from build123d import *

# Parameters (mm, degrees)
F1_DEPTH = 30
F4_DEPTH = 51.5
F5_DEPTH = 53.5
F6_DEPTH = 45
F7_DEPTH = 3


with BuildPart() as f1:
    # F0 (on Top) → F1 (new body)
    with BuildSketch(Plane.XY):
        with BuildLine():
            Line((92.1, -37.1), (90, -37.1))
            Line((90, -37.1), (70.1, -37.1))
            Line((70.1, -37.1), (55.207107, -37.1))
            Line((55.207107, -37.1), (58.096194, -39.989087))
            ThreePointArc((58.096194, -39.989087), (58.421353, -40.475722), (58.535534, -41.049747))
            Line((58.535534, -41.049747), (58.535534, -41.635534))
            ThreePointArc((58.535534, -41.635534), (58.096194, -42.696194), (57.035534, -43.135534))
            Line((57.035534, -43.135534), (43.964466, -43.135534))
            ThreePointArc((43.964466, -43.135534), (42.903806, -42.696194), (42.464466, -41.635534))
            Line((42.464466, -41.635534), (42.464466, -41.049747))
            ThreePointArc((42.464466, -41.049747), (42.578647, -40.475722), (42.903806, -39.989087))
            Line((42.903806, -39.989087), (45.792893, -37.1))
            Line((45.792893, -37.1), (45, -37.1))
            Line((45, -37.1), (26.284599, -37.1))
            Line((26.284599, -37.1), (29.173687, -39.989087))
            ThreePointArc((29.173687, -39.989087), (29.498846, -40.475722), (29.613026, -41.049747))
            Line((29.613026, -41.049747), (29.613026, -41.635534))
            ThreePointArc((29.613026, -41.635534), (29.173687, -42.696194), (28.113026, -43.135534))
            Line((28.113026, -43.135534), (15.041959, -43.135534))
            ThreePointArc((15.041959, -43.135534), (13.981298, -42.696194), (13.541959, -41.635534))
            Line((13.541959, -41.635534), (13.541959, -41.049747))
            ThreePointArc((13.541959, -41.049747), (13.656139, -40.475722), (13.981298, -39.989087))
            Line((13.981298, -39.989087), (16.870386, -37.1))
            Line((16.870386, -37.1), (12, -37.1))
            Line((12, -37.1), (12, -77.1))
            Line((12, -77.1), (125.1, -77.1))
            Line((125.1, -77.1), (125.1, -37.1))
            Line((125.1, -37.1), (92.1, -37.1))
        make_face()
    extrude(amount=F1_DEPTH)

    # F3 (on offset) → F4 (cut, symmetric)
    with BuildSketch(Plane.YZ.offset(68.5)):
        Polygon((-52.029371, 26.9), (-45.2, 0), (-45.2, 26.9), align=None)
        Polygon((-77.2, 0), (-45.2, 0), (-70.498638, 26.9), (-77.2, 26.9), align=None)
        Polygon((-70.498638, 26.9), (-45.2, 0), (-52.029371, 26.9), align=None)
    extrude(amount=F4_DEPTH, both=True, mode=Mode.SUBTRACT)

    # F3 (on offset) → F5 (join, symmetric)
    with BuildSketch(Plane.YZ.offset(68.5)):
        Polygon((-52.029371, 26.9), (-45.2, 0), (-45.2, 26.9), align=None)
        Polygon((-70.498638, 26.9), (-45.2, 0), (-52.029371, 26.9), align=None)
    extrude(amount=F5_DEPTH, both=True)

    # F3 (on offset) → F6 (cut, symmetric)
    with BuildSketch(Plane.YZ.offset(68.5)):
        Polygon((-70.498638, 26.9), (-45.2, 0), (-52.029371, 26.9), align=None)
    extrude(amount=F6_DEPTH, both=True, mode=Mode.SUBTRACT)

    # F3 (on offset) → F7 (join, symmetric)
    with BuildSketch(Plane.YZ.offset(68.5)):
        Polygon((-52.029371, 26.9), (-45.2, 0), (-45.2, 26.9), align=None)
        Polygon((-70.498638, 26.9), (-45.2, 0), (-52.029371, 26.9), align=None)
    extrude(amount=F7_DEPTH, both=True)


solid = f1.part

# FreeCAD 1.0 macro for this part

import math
import FreeCAD as App
import Part
import Sketcher

V = App.Vector

doc = App.newDocument("Part")
body = doc.addObject("PartDesign::Body", "Body")

sketch1 = doc.addObject("Sketcher::SketchObject", "Sketch")
body.addObject(sketch1)
sketch1.AttachmentSupport = (doc.XY_Plane, [""])
sketch1.MapMode = "FlatFace"
sketch1.addGeometry([
    Part.LineSegment(V(55.2, -37.1, 0), V(58.1, -40, 0)),
    Part.ArcOfCircle(Part.Circle(V(57, -41, 0), V(0, 0, 1), 1.5), math.radians(0), math.radians(45)),
    Part.LineSegment(V(58.5, -41, 0), V(58.5, -41.6, 0)),
    Part.ArcOfCircle(Part.Circle(V(57, -41.6, 0), V(0, 0, 1), 1.5), math.radians(-90), math.radians(0)),
    Part.LineSegment(V(57, -43.1, 0), V(44, -43.1, 0)),
    Part.ArcOfCircle(Part.Circle(V(44, -41.6, 0), V(0, 0, 1), 1.5), math.radians(-180), math.radians(-90)),
    Part.LineSegment(V(42.5, -41.6, 0), V(42.5, -41, 0)),
    Part.ArcOfCircle(Part.Circle(V(44, -41, 0), V(0, 0, 1), 1.5), math.radians(135), math.radians(180)),
    Part.LineSegment(V(42.9, -40, 0), V(45.8, -37.1, 0)),
    Part.LineSegment(V(45.8, -37.1, 0), V(26.3, -37.1, 0)),
    Part.LineSegment(V(26.3, -37.1, 0), V(29.2, -40, 0)),
    Part.ArcOfCircle(Part.Circle(V(28.1, -41, 0), V(0, 0, 1), 1.5), math.radians(0), math.radians(45)),
    Part.LineSegment(V(29.6, -41, 0), V(29.6, -41.6, 0)),
    Part.ArcOfCircle(Part.Circle(V(28.1, -41.6, 0), V(0, 0, 1), 1.5), math.radians(-90), math.radians(0)),
    Part.LineSegment(V(28.1, -43.1, 0), V(15, -43.1, 0)),
    Part.ArcOfCircle(Part.Circle(V(15, -41.6, 0), V(0, 0, 1), 1.5), math.radians(180), math.radians(270)),
    Part.LineSegment(V(13.5, -41.6, 0), V(13.5, -41, 0)),
    Part.ArcOfCircle(Part.Circle(V(15, -41, 0), V(0, 0, 1), 1.5), math.radians(135), math.radians(180)),
    Part.LineSegment(V(14, -40, 0), V(16.9, -37.1, 0)),
    Part.LineSegment(V(16.9, -37.1, 0), V(12, -37.1, 0)),
    Part.LineSegment(V(12, -37.1, 0), V(12, -77.1, 0)),
    Part.LineSegment(V(12, -77.1, 0), V(125.1, -77.1, 0)),
    Part.LineSegment(V(125.1, -77.1, 0), V(125.1, -37.1, 0)),
    Part.LineSegment(V(125.1, -37.1, 0), V(55.2, -37.1, 0)),
], False)
sketch1.addConstraint([
    Sketcher.Constraint("Tangent", 0, 2, 1, 2),
    Sketcher.Constraint("Tangent", 1, 1, 2, 1),
    Sketcher.Constraint("Tangent", 2, 2, 3, 2),
    Sketcher.Constraint("Tangent", 3, 1, 4, 1),
    Sketcher.Constraint("Tangent", 4, 2, 5, 2),
    Sketcher.Constraint("Tangent", 5, 1, 6, 1),
    Sketcher.Constraint("Tangent", 6, 2, 7, 2),
    Sketcher.Constraint("Tangent", 7, 1, 8, 1),
    Sketcher.Constraint("Coincident", 8, 2, 9, 1),
    Sketcher.Constraint("Coincident", 9, 2, 10, 1),
    Sketcher.Constraint("Tangent", 10, 2, 11, 2),
    Sketcher.Constraint("Tangent", 11, 1, 12, 1),
    Sketcher.Constraint("Tangent", 12, 2, 13, 2),
    Sketcher.Constraint("Tangent", 13, 1, 14, 1),
    Sketcher.Constraint("Tangent", 14, 2, 15, 2),
    Sketcher.Constraint("Tangent", 15, 1, 16, 1),
    Sketcher.Constraint("Tangent", 16, 2, 17, 2),
    Sketcher.Constraint("Tangent", 17, 1, 18, 1),
    Sketcher.Constraint("Coincident", 18, 2, 19, 1),
    Sketcher.Constraint("Coincident", 19, 2, 20, 1),
    Sketcher.Constraint("Coincident", 20, 2, 21, 1),
    Sketcher.Constraint("Coincident", 21, 2, 22, 1),
    Sketcher.Constraint("Coincident", 22, 2, 23, 1),
    Sketcher.Constraint("Coincident", 23, 2, 0, 1),
    Sketcher.Constraint("Vertical", 2),
    Sketcher.Constraint("Horizontal", 4),
    Sketcher.Constraint("Vertical", 6),
    Sketcher.Constraint("Horizontal", 9),
    Sketcher.Constraint("Vertical", 12),
    Sketcher.Constraint("Horizontal", 14),
    Sketcher.Constraint("Vertical", 16),
    Sketcher.Constraint("Horizontal", 19),
    Sketcher.Constraint("Vertical", 20),
    Sketcher.Constraint("Horizontal", 21),
    Sketcher.Constraint("Vertical", 22),
    Sketcher.Constraint("Horizontal", 23),
    Sketcher.Constraint("Equal", 1, 3),
    Sketcher.Constraint("Equal", 3, 5),
    Sketcher.Constraint("Equal", 5, 7),
    Sketcher.Constraint("Equal", 5, 13),
    Sketcher.Constraint("Equal", 13, 15),
    Sketcher.Constraint("Equal", 11, 17),
    Sketcher.Constraint("Perpendicular", 0, 8),
    Sketcher.Constraint("Perpendicular", 8, 10),
    Sketcher.Constraint("Perpendicular", 10, 18),
    Sketcher.Constraint("Horizontal", 1, 3, 7, 3),
    Sketcher.Constraint("Horizontal", 5, 3, 13, 3),
    Sketcher.Constraint("Horizontal", 11, 3, 17, 3),
    Sketcher.Constraint("Horizontal", 0, 2, 7, 1),
    Sketcher.Constraint("Horizontal", 7, 1, 10, 2),
    Sketcher.Constraint("Horizontal", 6, 2, 11, 1),
    Sketcher.Constraint("Horizontal", 9, 2, 18, 2),
    Sketcher.Constraint("Horizontal", 19, 2, 22, 2),
    Sketcher.Constraint("Equal", 4, 14),
    Sketcher.Constraint("Radius", 3, 1.500001),
    Sketcher.Constraint("DistanceY", 20, 2, 20, 1, 40.0),
    Sketcher.Constraint("DistanceX", 21, 1, 21, 2, 113.1),
    Sketcher.Constraint("DistanceX", -1, 1, 19, 2, 12.0),
    Sketcher.Constraint("DistanceY", 8, 2, -1, 1, 37.1),
    Sketcher.Constraint("DistanceX", -1, 1, 9, 2, 26.284599),
    Sketcher.Constraint("DistanceX", 11, 3, 1, 3, 28.922501),
    Sketcher.Constraint("DistanceX", 4, 2, 4, 1, 13.071068),
    Sketcher.Constraint("DistanceX", 9, 2, 9, 1, 19.508294),
    Sketcher.Constraint("DistanceY", 2, 2, 2, 1, 0.585787),
])
pad1 = doc.addObject("PartDesign::Pad", "Pad")
body.addObject(pad1)
pad1.Profile = sketch1
pad1.Length = 30

sketch2 = doc.addObject("Sketcher::SketchObject", "Sketch001")
body.addObject(sketch2)
sketch2.AttachmentSupport = (doc.YZ_Plane, [""])
sketch2.MapMode = "FlatFace"
sketch2.AttachmentOffset = App.Placement(V(0, 0, 68.5), App.Rotation())
sketch2.addGeometry([
    Part.LineSegment(V(-45, 0, 0), V(-45, 27, 0)),
    Part.LineSegment(V(-45, 27, 0), V(-77, 27, 0)),
    Part.LineSegment(V(-77, 27, 0), V(-77, 0, 0)),
    Part.LineSegment(V(-77, 0, 0), V(-45, 0, 0)),
], False)
sketch2.addConstraint([
    Sketcher.Constraint("Coincident", 0, 2, 1, 1),
    Sketcher.Constraint("Coincident", 1, 2, 2, 1),
    Sketcher.Constraint("Coincident", 2, 2, 3, 1),
    Sketcher.Constraint("Coincident", 3, 2, 0, 1),
    Sketcher.Constraint("Vertical", 0),
    Sketcher.Constraint("Horizontal", 1),
    Sketcher.Constraint("Vertical", 2),
    Sketcher.Constraint("Horizontal", 3),
    Sketcher.Constraint("PointOnObject", 2, 2, -1),
    Sketcher.Constraint("DistanceX", 1, 2, 1, 1, 32.0),
    Sketcher.Constraint("DistanceY", 0, 1, 0, 2, 26.9),
    Sketcher.Constraint("DistanceX", 0, 2, -1, 1, 45.2),
])
pocket1 = doc.addObject("PartDesign::Pocket", "Pocket")
body.addObject(pocket1)
pocket1.Profile = sketch2
pocket1.Length = 103
pocket1.Midplane = True

sketch3 = doc.addObject("Sketcher::SketchObject", "Sketch002")
body.addObject(sketch3)
sketch3.AttachmentSupport = (doc.YZ_Plane, [""])
sketch3.MapMode = "FlatFace"
sketch3.AttachmentOffset = App.Placement(V(0, 0, 68.5), App.Rotation())
sketch3.addGeometry([
    Part.LineSegment(V(-45, 0, 0), V(-45, 27, 0)),
    Part.LineSegment(V(-45, 27, 0), V(-70, 27, 0)),
    Part.LineSegment(V(-70, 27, 0), V(-45, 0, 0)),
], False)
sketch3.addConstraint([
    Sketcher.Constraint("Coincident", 0, 2, 1, 1),
    Sketcher.Constraint("Coincident", 1, 2, 2, 1),
    Sketcher.Constraint("Coincident", 2, 2, 0, 1),
    Sketcher.Constraint("Vertical", 0),
    Sketcher.Constraint("Horizontal", 1),
    Sketcher.Constraint("PointOnObject", 2, 2, -1),
    Sketcher.Constraint("DistanceY", 0, 1, 0, 2, 26.9),
    Sketcher.Constraint("DistanceX", 0, 2, -1, 1, 45.2),
    Sketcher.Constraint("DistanceX", 1, 2, 1, 1, 25.298638),
])
pad2 = doc.addObject("PartDesign::Pad", "Pad001")
body.addObject(pad2)
pad2.Profile = sketch3
pad2.Length = 107
pad2.Midplane = True

sketch4 = doc.addObject("Sketcher::SketchObject", "Sketch003")
body.addObject(sketch4)
sketch4.AttachmentSupport = (doc.YZ_Plane, [""])
sketch4.MapMode = "FlatFace"
sketch4.AttachmentOffset = App.Placement(V(0, 0, 68.5), App.Rotation())
sketch4.addGeometry([
    Part.LineSegment(V(-70, 27, 0), V(-45, 0, 0)),
    Part.LineSegment(V(-45, 0, 0), V(-52, 27, 0)),
    Part.LineSegment(V(-52, 27, 0), V(-70, 27, 0)),
], False)
sketch4.addConstraint([
    Sketcher.Constraint("Coincident", 0, 2, 1, 1),
    Sketcher.Constraint("Coincident", 1, 2, 2, 1),
    Sketcher.Constraint("Coincident", 2, 2, 0, 1),
    Sketcher.Constraint("Horizontal", 2),
    Sketcher.Constraint("PointOnObject", 0, 2, -1),
    Sketcher.Constraint("DistanceX", 0, 2, -1, 1, 45.2),
    Sketcher.Constraint("DistanceY", -1, 1, 1, 2, 26.9),
    Sketcher.Constraint("DistanceX", 2, 2, 2, 1, 18.469267),
    Sketcher.Constraint("DistanceX", 1, 2, -1, 1, 52.029371),
])
pocket2 = doc.addObject("PartDesign::Pocket", "Pocket001")
body.addObject(pocket2)
pocket2.Profile = sketch4
pocket2.Length = 90
pocket2.Midplane = True

sketch5 = doc.addObject("Sketcher::SketchObject", "Sketch004")
body.addObject(sketch5)
sketch5.AttachmentSupport = (doc.YZ_Plane, [""])
sketch5.MapMode = "FlatFace"
sketch5.AttachmentOffset = App.Placement(V(0, 0, 68.5), App.Rotation())
sketch5.addGeometry([
    Part.LineSegment(V(-45, 0, 0), V(-45, 27, 0)),
    Part.LineSegment(V(-45, 27, 0), V(-70, 27, 0)),
    Part.LineSegment(V(-70, 27, 0), V(-45, 0, 0)),
], False)
sketch5.addConstraint([
    Sketcher.Constraint("Coincident", 0, 2, 1, 1),
    Sketcher.Constraint("Coincident", 1, 2, 2, 1),
    Sketcher.Constraint("Coincident", 2, 2, 0, 1),
    Sketcher.Constraint("Vertical", 0),
    Sketcher.Constraint("Horizontal", 1),
    Sketcher.Constraint("PointOnObject", 2, 2, -1),
    Sketcher.Constraint("DistanceY", 0, 1, 0, 2, 26.9),
    Sketcher.Constraint("DistanceX", 0, 2, -1, 1, 45.2),
    Sketcher.Constraint("DistanceX", 1, 2, 1, 1, 25.298638),
])
pad3 = doc.addObject("PartDesign::Pad", "Pad002")
body.addObject(pad3)
pad3.Profile = sketch5
pad3.Length = 6
pad3.Midplane = True

doc.recompute()
